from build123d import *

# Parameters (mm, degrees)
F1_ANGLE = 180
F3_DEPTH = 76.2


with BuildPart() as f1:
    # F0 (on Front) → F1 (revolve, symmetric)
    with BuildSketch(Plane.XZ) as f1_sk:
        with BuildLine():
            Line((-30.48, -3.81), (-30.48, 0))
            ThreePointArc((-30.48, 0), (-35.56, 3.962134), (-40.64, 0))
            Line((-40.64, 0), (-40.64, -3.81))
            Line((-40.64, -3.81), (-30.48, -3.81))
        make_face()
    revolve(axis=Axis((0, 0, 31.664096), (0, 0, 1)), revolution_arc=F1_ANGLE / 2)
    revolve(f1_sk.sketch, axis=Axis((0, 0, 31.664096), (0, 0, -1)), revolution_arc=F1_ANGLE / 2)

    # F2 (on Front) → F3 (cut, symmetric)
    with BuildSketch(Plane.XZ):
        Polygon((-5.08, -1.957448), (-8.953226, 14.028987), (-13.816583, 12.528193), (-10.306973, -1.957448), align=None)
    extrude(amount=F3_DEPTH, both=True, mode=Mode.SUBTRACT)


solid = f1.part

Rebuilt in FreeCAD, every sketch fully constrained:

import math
import FreeCAD as App
import Part
import Sketcher
Q = App.Units.Quantity

doc = App.newDocument("Part")
body = doc.addObject("PartDesign::Body", "Body")

sketch1 = body.newObject("Sketcher::SketchObject", "Sketch")
sketch1.AttachmentSupport = (doc.getObject("XZ_Plane"), [""])
sketch1.MapMode = "FlatFace"
sketch1.addGeometry(Part.LineSegment(App.Vector(-30.48, -3.81, 0), App.Vector(-30.48, 0, 0)), False)
sketch1.addGeometry(Part.ArcOfCircle(Part.Circle(App.Vector(-35.56, -1.275562, 0), App.Vector(0, 0, 1), 5.237696), math.radians(14.095269), math.radians(165.904731)), False)
sketch1.addGeometry(Part.LineSegment(App.Vector(-40.64, 0, 0), App.Vector(-40.64, -3.81, 0)), False)
sketch1.addGeometry(Part.LineSegment(App.Vector(-40.64, -3.81, 0), App.Vector(-30.48, -3.81, 0)), False)
sketch1.addConstraint(Sketcher.Constraint("Coincident", 0, 2, 1, 1))
sketch1.addConstraint(Sketcher.Constraint("Coincident", 1, 2, 2, 1))
sketch1.addConstraint(Sketcher.Constraint("Coincident", 2, 2, 3, 1))
sketch1.addConstraint(Sketcher.Constraint("Coincident", 3, 2, 0, 1))
sketch1.addConstraint(Sketcher.Constraint("Vertical", 0))
sketch1.addConstraint(Sketcher.Constraint("Vertical", 2))
sketch1.addConstraint(Sketcher.Constraint("Horizontal", 3))
sketch1.addConstraint(Sketcher.Constraint("PointOnObject", 0, 2, -1))
sketch1.addConstraint(Sketcher.Constraint("PointOnObject", 1, 2, -1))
sketch1.addConstraint(Sketcher.Constraint("DistanceX", 3, 1, 3, 2, Q("0.4 in")))
sketch1.addConstraint(Sketcher.Constraint("DistanceY", 0, 1, 0, 2, Q("0.15 in")))
sketch1.addConstraint(Sketcher.Constraint("DistanceX", 1, 3, -1, 1, Q("1.4 in")))
sketch1.addConstraint(Sketcher.Constraint("Radius", 1, Q("5.237696 mm")))
revolution = body.newObject("PartDesign::Revolution", "Revolution")
revolution.Profile = sketch1
revolution.ReferenceAxis = (sketch1, ["V_Axis"])
revolution.Angle = 90

sketch2 = body.newObject("Sketcher::SketchObject", "Sketch001")
sketch2.AttachmentSupport = (doc.getObject("XZ_Plane"), [""])
sketch2.MapMode = "FlatFace"
sketch2.addGeometry(Part.LineSegment(App.Vector(-30.48, -3.81, 0), App.Vector(-30.48, 0, 0)), False)
sketch2.addGeometry(Part.ArcOfCircle(Part.Circle(App.Vector(-35.56, -1.275562, 0), App.Vector(0, 0, 1), 5.237696), math.radians(14.095269), math.radians(165.904731)), False)
sketch2.addGeometry(Part.LineSegment(App.Vector(-40.64, 0, 0), App.Vector(-40.64, -3.81, 0)), False)
sketch2.addGeometry(Part.LineSegment(App.Vector(-40.64, -3.81, 0), App.Vector(-30.48, -3.81, 0)), False)
sketch2.addConstraint(Sketcher.Constraint("Coincident", 0, 2, 1, 1))
sketch2.addConstraint(Sketcher.Constraint("Coincident", 1, 2, 2, 1))
sketch2.addConstraint(Sketcher.Constraint("Coincident", 2, 2, 3, 1))
sketch2.addConstraint(Sketcher.Constraint("Coincident", 3, 2, 0, 1))
sketch2.addConstraint(Sketcher.Constraint("Vertical", 0))
sketch2.addConstraint(Sketcher.Constraint("Vertical", 2))
sketch2.addConstraint(Sketcher.Constraint("Horizontal", 3))
sketch2.addConstraint(Sketcher.Constraint("PointOnObject", 0, 2, -1))
sketch2.addConstraint(Sketcher.Constraint("PointOnObject", 1, 2, -1))
sketch2.addConstraint(Sketcher.Constraint("DistanceX", 3, 1, 3, 2, Q("0.4 in")))
sketch2.addConstraint(Sketcher.Constraint("DistanceY", 0, 1, 0, 2, Q("0.15 in")))
sketch2.addConstraint(Sketcher.Constraint("DistanceX", 1, 3, -1, 1, Q("1.4 in")))
sketch2.addConstraint(Sketcher.Constraint("Radius", 1, Q("5.237696 mm")))
revolution2 = body.newObject("PartDesign::Revolution", "Revolution001")
revolution2.Profile = sketch2
revolution2.ReferenceAxis = (sketch2, ["V_Axis"])
revolution2.Angle = 90
revolution2.Reversed = True

sketch3 = body.newObject("Sketcher::SketchObject", "Sketch002")
sketch3.AttachmentSupport = (doc.getObject("XZ_Plane"), [""])
sketch3.MapMode = "FlatFace"
sketch3.addGeometry(Part.LineSegment(App.Vector(-5.08, -1.957448, 0), App.Vector(-8.953226, 14.028987, 0)), False)
sketch3.addGeometry(Part.LineSegment(App.Vector(-8.953226, 14.028987, 0), App.Vector(-13.816583, 12.528193, 0)), False)
sketch3.addGeometry(Part.LineSegment(App.Vector(-13.816583, 12.528193, 0), App.Vector(-10.306973, -1.957448, 0)), False)
sketch3.addGeometry(Part.LineSegment(App.Vector(-10.306973, -1.957448, 0), App.Vector(-5.08, -1.957448, 0)), False)
sketch3.addConstraint(Sketcher.Constraint("Coincident", 0, 2, 1, 1))
sketch3.addConstraint(Sketcher.Constraint("Coincident", 1, 2, 2, 1))
sketch3.addConstraint(Sketcher.Constraint("Coincident", 2, 2, 3, 1))
sketch3.addConstraint(Sketcher.Constraint("Coincident", 3, 2, 0, 1))
sketch3.addConstraint(Sketcher.Constraint("Horizontal", 3))
sketch3.addConstraint(Sketcher.Constraint("Parallel", 0, 2))
sketch3.addConstraint(Sketcher.Constraint("DistanceX", 3, 2, -1, 1, Q("0.2 in")))
sketch3.addConstraint(Sketcher.Constraint("Distance", 0, Q("16.448951 mm")))
sketch3.addConstraint(Sketcher.Constraint("Distance", 1, Q("5.089659 mm")))
sketch3.addConstraint(Sketcher.Constraint("DistanceX", 3, 1, 3, 2, Q("5.226973 mm")))
sketch3.addConstraint(Sketcher.Constraint("DistanceY", 2, 2, -1, 1, Q("1.957448 mm")))
sketch3.addConstraint(Sketcher.Constraint("DistanceX", 1, 2, 2, 2, Q("3.50961 mm")))
pocket1 = body.newObject("PartDesign::Pocket", "Pocket")
pocket1.Profile = sketch3
pocket1.Length = Q("6 in")
pocket1.Midplane = True

doc.recompute()
